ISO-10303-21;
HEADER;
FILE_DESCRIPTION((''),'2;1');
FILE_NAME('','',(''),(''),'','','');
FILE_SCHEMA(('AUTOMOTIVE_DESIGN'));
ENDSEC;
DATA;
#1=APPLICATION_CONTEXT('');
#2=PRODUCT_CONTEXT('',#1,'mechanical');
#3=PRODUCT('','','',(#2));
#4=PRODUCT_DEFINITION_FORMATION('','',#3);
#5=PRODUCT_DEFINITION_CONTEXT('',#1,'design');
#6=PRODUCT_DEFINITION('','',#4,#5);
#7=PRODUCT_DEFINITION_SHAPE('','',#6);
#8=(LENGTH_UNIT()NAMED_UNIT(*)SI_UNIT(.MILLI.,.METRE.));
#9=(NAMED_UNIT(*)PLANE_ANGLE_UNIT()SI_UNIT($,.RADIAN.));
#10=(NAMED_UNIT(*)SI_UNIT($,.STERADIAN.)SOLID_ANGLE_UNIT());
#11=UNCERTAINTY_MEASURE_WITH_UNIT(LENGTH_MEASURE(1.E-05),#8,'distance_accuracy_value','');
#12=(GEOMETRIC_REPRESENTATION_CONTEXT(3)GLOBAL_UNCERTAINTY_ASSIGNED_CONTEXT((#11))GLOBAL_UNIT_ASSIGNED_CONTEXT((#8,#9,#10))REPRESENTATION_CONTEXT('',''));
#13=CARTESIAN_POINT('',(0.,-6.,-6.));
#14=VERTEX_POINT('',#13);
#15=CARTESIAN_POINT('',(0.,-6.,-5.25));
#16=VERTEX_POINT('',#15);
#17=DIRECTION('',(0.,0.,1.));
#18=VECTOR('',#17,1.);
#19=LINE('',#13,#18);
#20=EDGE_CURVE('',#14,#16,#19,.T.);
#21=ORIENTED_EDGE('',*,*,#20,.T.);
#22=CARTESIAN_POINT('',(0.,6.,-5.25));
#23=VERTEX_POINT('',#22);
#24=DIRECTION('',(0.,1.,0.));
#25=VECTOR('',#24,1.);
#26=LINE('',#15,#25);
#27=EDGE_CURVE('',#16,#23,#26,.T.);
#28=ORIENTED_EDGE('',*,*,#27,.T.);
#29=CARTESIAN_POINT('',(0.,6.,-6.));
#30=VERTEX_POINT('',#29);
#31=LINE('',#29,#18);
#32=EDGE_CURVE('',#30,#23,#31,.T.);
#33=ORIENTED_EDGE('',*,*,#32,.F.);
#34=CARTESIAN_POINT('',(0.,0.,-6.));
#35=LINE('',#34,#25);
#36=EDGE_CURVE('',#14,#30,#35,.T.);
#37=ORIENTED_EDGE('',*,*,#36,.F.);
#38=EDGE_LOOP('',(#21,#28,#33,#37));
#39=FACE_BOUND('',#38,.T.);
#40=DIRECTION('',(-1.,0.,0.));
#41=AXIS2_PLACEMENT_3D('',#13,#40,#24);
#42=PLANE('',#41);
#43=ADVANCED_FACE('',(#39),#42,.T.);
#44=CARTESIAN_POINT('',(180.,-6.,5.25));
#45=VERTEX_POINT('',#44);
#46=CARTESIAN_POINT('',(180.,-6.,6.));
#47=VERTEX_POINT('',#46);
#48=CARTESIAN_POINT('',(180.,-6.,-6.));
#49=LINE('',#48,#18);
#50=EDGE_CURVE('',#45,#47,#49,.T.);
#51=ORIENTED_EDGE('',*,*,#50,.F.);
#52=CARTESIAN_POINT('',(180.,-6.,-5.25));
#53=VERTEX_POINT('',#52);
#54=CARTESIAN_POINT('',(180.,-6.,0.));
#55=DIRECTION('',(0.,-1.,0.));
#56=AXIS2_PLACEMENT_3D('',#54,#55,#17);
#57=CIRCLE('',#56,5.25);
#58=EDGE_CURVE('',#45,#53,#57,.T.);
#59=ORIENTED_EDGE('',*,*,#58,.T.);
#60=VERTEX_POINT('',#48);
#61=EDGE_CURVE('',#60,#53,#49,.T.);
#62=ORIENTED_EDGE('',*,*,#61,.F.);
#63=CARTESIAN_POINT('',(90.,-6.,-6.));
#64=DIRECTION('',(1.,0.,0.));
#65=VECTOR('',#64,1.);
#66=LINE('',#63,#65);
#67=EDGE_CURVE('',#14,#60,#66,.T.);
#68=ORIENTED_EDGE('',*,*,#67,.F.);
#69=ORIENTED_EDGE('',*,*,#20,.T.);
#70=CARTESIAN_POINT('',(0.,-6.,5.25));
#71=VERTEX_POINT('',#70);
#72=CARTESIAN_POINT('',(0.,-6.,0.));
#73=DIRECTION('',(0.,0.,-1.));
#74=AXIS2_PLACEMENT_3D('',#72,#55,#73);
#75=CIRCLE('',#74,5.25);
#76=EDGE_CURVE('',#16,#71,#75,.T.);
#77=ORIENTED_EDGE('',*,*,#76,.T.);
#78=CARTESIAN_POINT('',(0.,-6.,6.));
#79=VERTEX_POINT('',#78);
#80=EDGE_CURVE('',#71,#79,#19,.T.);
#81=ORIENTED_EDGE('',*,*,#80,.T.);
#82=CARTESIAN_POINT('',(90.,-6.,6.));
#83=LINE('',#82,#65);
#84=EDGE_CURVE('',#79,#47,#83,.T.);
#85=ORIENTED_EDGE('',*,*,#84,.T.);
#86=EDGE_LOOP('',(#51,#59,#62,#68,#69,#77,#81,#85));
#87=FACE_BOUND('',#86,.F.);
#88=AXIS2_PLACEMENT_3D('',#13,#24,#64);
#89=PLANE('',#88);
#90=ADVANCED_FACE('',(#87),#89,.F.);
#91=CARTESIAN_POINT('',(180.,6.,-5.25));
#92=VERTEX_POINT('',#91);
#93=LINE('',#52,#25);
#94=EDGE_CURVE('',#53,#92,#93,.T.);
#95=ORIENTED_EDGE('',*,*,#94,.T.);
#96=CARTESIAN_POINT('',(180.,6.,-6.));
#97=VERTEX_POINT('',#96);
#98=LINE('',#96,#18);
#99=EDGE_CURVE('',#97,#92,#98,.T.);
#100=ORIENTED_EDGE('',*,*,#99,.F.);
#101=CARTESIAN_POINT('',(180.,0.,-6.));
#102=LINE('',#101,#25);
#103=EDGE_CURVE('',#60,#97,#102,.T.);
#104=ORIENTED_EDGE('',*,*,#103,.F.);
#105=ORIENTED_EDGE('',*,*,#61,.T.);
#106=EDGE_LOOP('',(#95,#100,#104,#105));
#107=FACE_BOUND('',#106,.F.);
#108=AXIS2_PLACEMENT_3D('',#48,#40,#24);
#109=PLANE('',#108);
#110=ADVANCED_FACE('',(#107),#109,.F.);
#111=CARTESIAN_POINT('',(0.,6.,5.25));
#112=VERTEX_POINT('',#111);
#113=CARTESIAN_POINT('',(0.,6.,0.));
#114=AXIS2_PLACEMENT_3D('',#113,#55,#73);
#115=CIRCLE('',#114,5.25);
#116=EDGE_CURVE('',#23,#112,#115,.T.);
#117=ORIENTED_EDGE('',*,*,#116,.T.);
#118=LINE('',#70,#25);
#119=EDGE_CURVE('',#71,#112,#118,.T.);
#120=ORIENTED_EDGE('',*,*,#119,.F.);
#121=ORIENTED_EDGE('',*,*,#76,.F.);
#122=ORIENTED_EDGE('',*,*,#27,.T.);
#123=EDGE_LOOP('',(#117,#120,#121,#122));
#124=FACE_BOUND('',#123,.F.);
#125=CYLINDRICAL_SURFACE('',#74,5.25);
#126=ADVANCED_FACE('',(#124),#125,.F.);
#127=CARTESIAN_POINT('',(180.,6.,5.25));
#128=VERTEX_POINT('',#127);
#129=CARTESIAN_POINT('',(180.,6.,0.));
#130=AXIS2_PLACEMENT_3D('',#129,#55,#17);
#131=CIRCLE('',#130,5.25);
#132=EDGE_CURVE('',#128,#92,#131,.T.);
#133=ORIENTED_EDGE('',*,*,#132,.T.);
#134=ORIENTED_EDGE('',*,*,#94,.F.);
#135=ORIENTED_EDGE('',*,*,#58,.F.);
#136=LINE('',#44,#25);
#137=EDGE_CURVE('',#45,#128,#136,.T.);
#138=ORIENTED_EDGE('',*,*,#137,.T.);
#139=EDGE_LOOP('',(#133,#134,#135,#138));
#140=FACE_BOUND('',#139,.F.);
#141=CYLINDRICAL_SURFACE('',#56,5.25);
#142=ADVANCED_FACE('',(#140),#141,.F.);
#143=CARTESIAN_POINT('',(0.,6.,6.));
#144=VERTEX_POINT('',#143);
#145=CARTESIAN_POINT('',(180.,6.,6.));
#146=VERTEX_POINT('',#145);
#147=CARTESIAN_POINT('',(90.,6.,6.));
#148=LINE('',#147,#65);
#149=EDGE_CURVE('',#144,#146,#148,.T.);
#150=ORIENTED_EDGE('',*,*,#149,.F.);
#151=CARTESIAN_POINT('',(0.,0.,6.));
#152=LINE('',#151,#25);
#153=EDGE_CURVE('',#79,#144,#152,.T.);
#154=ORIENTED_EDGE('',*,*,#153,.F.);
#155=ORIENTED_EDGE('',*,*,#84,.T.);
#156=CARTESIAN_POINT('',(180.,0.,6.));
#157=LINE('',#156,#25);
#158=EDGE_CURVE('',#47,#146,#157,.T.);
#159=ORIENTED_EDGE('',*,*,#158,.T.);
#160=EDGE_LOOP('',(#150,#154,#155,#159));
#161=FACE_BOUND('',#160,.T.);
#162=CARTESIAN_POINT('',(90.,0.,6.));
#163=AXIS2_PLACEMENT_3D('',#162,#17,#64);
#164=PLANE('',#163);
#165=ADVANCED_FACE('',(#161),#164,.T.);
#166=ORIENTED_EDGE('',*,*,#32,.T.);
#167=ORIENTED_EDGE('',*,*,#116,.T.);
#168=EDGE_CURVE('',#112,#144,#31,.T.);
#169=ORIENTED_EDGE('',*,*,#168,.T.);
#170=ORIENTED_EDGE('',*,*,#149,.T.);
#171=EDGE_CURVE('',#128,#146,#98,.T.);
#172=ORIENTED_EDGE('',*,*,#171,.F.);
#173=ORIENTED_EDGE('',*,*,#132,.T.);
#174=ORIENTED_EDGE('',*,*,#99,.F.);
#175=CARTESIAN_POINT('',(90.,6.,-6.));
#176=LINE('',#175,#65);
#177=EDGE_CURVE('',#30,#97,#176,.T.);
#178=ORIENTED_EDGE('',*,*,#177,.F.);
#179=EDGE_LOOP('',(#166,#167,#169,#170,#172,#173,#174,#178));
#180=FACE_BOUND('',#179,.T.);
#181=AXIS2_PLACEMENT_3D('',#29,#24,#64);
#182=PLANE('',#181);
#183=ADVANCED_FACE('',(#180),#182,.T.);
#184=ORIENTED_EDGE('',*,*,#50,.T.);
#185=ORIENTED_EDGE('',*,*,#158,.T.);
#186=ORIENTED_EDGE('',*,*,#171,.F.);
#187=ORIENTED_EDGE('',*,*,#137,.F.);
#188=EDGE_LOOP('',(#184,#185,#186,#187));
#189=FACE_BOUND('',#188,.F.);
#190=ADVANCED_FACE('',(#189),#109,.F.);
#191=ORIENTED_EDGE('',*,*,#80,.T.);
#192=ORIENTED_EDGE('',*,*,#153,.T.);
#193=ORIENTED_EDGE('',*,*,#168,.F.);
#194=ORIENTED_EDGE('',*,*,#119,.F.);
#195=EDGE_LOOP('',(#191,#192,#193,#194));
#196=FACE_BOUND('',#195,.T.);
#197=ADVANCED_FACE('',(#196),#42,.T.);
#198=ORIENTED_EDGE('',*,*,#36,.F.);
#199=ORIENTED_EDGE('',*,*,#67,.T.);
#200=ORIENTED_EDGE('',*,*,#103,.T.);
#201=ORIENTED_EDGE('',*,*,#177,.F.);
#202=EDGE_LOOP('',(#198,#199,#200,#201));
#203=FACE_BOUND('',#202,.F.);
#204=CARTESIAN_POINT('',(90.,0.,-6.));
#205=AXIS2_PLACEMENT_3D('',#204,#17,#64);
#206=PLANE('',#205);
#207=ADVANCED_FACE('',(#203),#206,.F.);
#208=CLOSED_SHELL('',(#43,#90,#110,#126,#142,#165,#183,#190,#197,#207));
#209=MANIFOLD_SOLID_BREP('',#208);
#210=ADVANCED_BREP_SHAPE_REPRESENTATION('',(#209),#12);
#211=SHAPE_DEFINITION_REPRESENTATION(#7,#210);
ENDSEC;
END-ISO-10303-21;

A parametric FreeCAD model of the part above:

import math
import FreeCAD as App
import Part
import Sketcher


def add_polygon(sketch, points):
    """Adds a closed chain of lines whose ends are joined by coincident constraints."""
    first, n = sketch.GeometryCount, len(points)
    for a, b in zip(points, points[1:] + points[:1]):
        sketch.addGeometry(Part.LineSegment(App.Vector(*a, 0), App.Vector(*b, 0)), False)
    for i in range(n):
        sketch.addConstraint(Sketcher.Constraint("Coincident", first + i, 2, first + (i + 1) % n, 1))

doc = App.newDocument("Part")
body = doc.addObject("PartDesign::Body", "Body")

# Sketch on XY plane
sketch1 = body.newObject("Sketcher::SketchObject", "Sketch")
sketch1.AttachmentSupport = (doc.getObject("XY_Plane"), [""])
sketch1.MapMode = "FlatFace"
sketch1.AttachmentOffset = App.Placement(App.Vector(0, 0, -6), App.Rotation())
add_polygon(sketch1, [(0, 6), (0, -6), (180, -6), (180, 6)])  # lines 0-3
sketch1.addConstraint(Sketcher.Constraint("Vertical", 0))
sketch1.addConstraint(Sketcher.Constraint("Horizontal", 1))
sketch1.addConstraint(Sketcher.Constraint("Vertical", 2))
sketch1.addConstraint(Sketcher.Constraint("Horizontal", 3))
sketch1.addConstraint(Sketcher.Constraint("Symmetric", 0, 2, 3, 2, -1, 1))
sketch1.addConstraint(Sketcher.Constraint("DistanceX", 1, 1, 1, 2, 180.0))
sketch1.addConstraint(Sketcher.Constraint("DistanceY", 0, 2, 0, 1, 12.0))
pad1 = body.newObject("PartDesign::Pad", "Pad")
pad1.Profile = sketch1
pad1.Length = 12

# Sketch on XZ plane
sketch2 = body.newObject("Sketcher::SketchObject", "Sketch001")
sketch2.AttachmentSupport = (doc.getObject("XZ_Plane"), [""])
sketch2.MapMode = "FlatFace"
sketch2.AttachmentOffset = App.Placement(App.Vector(0, 0, 6), App.Rotation())
sketch2.addGeometry(Part.ArcOfCircle(Part.Circle(App.Vector(0, 0, 0), App.Vector(0, 0, 1), 5.25), math.radians(-90), math.radians(90)), False)
sketch2.addGeometry(Part.LineSegment(App.Vector(0, 5.25, 0), App.Vector(0, -5.25, 0)), False)
sketch2.addGeometry(Part.ArcOfCircle(Part.Circle(App.Vector(180, 0, 0), App.Vector(0, 0, 1), 5.25), math.radians(90), math.radians(270)), False)
sketch2.addGeometry(Part.LineSegment(App.Vector(180, -5.25, 0), App.Vector(180, 5.25, 0)), False)
sketch2.addConstraint(Sketcher.Constraint("Coincident", 0, 1, 1, 2))
sketch2.addConstraint(Sketcher.Constraint("Coincident", 1, 1, 0, 2))
sketch2.addConstraint(Sketcher.Constraint("Coincident", 2, 1, 3, 2))
sketch2.addConstraint(Sketcher.Constraint("Coincident", 3, 1, 2, 2))
sketch2.addConstraint(Sketcher.Constraint("Vertical", 1))
sketch2.addConstraint(Sketcher.Constraint("Vertical", 3))
sketch2.addConstraint(Sketcher.Constraint("Coincident", 0, 3, -1, 1))
sketch2.addConstraint(Sketcher.Constraint("Equal", 0, 2))
sketch2.addConstraint(Sketcher.Constraint("PointOnObject", 2, 3, -1))
sketch2.addConstraint(Sketcher.Constraint("PointOnObject", 0, 1, -2))
sketch2.addConstraint(Sketcher.Constraint("Radius", 0, 5.25))
sketch2.addConstraint(Sketcher.Constraint("DistanceX", -1, 1, 2, 3, 180.0))
sketch2.addConstraint(Sketcher.Constraint("DistanceX", -1, 1, 2, 1, 180.0))
pocket1 = body.newObject("PartDesign::Pocket", "Pocket")
pocket1.Profile = sketch2
pocket1.Length = 12

doc.recompute()
